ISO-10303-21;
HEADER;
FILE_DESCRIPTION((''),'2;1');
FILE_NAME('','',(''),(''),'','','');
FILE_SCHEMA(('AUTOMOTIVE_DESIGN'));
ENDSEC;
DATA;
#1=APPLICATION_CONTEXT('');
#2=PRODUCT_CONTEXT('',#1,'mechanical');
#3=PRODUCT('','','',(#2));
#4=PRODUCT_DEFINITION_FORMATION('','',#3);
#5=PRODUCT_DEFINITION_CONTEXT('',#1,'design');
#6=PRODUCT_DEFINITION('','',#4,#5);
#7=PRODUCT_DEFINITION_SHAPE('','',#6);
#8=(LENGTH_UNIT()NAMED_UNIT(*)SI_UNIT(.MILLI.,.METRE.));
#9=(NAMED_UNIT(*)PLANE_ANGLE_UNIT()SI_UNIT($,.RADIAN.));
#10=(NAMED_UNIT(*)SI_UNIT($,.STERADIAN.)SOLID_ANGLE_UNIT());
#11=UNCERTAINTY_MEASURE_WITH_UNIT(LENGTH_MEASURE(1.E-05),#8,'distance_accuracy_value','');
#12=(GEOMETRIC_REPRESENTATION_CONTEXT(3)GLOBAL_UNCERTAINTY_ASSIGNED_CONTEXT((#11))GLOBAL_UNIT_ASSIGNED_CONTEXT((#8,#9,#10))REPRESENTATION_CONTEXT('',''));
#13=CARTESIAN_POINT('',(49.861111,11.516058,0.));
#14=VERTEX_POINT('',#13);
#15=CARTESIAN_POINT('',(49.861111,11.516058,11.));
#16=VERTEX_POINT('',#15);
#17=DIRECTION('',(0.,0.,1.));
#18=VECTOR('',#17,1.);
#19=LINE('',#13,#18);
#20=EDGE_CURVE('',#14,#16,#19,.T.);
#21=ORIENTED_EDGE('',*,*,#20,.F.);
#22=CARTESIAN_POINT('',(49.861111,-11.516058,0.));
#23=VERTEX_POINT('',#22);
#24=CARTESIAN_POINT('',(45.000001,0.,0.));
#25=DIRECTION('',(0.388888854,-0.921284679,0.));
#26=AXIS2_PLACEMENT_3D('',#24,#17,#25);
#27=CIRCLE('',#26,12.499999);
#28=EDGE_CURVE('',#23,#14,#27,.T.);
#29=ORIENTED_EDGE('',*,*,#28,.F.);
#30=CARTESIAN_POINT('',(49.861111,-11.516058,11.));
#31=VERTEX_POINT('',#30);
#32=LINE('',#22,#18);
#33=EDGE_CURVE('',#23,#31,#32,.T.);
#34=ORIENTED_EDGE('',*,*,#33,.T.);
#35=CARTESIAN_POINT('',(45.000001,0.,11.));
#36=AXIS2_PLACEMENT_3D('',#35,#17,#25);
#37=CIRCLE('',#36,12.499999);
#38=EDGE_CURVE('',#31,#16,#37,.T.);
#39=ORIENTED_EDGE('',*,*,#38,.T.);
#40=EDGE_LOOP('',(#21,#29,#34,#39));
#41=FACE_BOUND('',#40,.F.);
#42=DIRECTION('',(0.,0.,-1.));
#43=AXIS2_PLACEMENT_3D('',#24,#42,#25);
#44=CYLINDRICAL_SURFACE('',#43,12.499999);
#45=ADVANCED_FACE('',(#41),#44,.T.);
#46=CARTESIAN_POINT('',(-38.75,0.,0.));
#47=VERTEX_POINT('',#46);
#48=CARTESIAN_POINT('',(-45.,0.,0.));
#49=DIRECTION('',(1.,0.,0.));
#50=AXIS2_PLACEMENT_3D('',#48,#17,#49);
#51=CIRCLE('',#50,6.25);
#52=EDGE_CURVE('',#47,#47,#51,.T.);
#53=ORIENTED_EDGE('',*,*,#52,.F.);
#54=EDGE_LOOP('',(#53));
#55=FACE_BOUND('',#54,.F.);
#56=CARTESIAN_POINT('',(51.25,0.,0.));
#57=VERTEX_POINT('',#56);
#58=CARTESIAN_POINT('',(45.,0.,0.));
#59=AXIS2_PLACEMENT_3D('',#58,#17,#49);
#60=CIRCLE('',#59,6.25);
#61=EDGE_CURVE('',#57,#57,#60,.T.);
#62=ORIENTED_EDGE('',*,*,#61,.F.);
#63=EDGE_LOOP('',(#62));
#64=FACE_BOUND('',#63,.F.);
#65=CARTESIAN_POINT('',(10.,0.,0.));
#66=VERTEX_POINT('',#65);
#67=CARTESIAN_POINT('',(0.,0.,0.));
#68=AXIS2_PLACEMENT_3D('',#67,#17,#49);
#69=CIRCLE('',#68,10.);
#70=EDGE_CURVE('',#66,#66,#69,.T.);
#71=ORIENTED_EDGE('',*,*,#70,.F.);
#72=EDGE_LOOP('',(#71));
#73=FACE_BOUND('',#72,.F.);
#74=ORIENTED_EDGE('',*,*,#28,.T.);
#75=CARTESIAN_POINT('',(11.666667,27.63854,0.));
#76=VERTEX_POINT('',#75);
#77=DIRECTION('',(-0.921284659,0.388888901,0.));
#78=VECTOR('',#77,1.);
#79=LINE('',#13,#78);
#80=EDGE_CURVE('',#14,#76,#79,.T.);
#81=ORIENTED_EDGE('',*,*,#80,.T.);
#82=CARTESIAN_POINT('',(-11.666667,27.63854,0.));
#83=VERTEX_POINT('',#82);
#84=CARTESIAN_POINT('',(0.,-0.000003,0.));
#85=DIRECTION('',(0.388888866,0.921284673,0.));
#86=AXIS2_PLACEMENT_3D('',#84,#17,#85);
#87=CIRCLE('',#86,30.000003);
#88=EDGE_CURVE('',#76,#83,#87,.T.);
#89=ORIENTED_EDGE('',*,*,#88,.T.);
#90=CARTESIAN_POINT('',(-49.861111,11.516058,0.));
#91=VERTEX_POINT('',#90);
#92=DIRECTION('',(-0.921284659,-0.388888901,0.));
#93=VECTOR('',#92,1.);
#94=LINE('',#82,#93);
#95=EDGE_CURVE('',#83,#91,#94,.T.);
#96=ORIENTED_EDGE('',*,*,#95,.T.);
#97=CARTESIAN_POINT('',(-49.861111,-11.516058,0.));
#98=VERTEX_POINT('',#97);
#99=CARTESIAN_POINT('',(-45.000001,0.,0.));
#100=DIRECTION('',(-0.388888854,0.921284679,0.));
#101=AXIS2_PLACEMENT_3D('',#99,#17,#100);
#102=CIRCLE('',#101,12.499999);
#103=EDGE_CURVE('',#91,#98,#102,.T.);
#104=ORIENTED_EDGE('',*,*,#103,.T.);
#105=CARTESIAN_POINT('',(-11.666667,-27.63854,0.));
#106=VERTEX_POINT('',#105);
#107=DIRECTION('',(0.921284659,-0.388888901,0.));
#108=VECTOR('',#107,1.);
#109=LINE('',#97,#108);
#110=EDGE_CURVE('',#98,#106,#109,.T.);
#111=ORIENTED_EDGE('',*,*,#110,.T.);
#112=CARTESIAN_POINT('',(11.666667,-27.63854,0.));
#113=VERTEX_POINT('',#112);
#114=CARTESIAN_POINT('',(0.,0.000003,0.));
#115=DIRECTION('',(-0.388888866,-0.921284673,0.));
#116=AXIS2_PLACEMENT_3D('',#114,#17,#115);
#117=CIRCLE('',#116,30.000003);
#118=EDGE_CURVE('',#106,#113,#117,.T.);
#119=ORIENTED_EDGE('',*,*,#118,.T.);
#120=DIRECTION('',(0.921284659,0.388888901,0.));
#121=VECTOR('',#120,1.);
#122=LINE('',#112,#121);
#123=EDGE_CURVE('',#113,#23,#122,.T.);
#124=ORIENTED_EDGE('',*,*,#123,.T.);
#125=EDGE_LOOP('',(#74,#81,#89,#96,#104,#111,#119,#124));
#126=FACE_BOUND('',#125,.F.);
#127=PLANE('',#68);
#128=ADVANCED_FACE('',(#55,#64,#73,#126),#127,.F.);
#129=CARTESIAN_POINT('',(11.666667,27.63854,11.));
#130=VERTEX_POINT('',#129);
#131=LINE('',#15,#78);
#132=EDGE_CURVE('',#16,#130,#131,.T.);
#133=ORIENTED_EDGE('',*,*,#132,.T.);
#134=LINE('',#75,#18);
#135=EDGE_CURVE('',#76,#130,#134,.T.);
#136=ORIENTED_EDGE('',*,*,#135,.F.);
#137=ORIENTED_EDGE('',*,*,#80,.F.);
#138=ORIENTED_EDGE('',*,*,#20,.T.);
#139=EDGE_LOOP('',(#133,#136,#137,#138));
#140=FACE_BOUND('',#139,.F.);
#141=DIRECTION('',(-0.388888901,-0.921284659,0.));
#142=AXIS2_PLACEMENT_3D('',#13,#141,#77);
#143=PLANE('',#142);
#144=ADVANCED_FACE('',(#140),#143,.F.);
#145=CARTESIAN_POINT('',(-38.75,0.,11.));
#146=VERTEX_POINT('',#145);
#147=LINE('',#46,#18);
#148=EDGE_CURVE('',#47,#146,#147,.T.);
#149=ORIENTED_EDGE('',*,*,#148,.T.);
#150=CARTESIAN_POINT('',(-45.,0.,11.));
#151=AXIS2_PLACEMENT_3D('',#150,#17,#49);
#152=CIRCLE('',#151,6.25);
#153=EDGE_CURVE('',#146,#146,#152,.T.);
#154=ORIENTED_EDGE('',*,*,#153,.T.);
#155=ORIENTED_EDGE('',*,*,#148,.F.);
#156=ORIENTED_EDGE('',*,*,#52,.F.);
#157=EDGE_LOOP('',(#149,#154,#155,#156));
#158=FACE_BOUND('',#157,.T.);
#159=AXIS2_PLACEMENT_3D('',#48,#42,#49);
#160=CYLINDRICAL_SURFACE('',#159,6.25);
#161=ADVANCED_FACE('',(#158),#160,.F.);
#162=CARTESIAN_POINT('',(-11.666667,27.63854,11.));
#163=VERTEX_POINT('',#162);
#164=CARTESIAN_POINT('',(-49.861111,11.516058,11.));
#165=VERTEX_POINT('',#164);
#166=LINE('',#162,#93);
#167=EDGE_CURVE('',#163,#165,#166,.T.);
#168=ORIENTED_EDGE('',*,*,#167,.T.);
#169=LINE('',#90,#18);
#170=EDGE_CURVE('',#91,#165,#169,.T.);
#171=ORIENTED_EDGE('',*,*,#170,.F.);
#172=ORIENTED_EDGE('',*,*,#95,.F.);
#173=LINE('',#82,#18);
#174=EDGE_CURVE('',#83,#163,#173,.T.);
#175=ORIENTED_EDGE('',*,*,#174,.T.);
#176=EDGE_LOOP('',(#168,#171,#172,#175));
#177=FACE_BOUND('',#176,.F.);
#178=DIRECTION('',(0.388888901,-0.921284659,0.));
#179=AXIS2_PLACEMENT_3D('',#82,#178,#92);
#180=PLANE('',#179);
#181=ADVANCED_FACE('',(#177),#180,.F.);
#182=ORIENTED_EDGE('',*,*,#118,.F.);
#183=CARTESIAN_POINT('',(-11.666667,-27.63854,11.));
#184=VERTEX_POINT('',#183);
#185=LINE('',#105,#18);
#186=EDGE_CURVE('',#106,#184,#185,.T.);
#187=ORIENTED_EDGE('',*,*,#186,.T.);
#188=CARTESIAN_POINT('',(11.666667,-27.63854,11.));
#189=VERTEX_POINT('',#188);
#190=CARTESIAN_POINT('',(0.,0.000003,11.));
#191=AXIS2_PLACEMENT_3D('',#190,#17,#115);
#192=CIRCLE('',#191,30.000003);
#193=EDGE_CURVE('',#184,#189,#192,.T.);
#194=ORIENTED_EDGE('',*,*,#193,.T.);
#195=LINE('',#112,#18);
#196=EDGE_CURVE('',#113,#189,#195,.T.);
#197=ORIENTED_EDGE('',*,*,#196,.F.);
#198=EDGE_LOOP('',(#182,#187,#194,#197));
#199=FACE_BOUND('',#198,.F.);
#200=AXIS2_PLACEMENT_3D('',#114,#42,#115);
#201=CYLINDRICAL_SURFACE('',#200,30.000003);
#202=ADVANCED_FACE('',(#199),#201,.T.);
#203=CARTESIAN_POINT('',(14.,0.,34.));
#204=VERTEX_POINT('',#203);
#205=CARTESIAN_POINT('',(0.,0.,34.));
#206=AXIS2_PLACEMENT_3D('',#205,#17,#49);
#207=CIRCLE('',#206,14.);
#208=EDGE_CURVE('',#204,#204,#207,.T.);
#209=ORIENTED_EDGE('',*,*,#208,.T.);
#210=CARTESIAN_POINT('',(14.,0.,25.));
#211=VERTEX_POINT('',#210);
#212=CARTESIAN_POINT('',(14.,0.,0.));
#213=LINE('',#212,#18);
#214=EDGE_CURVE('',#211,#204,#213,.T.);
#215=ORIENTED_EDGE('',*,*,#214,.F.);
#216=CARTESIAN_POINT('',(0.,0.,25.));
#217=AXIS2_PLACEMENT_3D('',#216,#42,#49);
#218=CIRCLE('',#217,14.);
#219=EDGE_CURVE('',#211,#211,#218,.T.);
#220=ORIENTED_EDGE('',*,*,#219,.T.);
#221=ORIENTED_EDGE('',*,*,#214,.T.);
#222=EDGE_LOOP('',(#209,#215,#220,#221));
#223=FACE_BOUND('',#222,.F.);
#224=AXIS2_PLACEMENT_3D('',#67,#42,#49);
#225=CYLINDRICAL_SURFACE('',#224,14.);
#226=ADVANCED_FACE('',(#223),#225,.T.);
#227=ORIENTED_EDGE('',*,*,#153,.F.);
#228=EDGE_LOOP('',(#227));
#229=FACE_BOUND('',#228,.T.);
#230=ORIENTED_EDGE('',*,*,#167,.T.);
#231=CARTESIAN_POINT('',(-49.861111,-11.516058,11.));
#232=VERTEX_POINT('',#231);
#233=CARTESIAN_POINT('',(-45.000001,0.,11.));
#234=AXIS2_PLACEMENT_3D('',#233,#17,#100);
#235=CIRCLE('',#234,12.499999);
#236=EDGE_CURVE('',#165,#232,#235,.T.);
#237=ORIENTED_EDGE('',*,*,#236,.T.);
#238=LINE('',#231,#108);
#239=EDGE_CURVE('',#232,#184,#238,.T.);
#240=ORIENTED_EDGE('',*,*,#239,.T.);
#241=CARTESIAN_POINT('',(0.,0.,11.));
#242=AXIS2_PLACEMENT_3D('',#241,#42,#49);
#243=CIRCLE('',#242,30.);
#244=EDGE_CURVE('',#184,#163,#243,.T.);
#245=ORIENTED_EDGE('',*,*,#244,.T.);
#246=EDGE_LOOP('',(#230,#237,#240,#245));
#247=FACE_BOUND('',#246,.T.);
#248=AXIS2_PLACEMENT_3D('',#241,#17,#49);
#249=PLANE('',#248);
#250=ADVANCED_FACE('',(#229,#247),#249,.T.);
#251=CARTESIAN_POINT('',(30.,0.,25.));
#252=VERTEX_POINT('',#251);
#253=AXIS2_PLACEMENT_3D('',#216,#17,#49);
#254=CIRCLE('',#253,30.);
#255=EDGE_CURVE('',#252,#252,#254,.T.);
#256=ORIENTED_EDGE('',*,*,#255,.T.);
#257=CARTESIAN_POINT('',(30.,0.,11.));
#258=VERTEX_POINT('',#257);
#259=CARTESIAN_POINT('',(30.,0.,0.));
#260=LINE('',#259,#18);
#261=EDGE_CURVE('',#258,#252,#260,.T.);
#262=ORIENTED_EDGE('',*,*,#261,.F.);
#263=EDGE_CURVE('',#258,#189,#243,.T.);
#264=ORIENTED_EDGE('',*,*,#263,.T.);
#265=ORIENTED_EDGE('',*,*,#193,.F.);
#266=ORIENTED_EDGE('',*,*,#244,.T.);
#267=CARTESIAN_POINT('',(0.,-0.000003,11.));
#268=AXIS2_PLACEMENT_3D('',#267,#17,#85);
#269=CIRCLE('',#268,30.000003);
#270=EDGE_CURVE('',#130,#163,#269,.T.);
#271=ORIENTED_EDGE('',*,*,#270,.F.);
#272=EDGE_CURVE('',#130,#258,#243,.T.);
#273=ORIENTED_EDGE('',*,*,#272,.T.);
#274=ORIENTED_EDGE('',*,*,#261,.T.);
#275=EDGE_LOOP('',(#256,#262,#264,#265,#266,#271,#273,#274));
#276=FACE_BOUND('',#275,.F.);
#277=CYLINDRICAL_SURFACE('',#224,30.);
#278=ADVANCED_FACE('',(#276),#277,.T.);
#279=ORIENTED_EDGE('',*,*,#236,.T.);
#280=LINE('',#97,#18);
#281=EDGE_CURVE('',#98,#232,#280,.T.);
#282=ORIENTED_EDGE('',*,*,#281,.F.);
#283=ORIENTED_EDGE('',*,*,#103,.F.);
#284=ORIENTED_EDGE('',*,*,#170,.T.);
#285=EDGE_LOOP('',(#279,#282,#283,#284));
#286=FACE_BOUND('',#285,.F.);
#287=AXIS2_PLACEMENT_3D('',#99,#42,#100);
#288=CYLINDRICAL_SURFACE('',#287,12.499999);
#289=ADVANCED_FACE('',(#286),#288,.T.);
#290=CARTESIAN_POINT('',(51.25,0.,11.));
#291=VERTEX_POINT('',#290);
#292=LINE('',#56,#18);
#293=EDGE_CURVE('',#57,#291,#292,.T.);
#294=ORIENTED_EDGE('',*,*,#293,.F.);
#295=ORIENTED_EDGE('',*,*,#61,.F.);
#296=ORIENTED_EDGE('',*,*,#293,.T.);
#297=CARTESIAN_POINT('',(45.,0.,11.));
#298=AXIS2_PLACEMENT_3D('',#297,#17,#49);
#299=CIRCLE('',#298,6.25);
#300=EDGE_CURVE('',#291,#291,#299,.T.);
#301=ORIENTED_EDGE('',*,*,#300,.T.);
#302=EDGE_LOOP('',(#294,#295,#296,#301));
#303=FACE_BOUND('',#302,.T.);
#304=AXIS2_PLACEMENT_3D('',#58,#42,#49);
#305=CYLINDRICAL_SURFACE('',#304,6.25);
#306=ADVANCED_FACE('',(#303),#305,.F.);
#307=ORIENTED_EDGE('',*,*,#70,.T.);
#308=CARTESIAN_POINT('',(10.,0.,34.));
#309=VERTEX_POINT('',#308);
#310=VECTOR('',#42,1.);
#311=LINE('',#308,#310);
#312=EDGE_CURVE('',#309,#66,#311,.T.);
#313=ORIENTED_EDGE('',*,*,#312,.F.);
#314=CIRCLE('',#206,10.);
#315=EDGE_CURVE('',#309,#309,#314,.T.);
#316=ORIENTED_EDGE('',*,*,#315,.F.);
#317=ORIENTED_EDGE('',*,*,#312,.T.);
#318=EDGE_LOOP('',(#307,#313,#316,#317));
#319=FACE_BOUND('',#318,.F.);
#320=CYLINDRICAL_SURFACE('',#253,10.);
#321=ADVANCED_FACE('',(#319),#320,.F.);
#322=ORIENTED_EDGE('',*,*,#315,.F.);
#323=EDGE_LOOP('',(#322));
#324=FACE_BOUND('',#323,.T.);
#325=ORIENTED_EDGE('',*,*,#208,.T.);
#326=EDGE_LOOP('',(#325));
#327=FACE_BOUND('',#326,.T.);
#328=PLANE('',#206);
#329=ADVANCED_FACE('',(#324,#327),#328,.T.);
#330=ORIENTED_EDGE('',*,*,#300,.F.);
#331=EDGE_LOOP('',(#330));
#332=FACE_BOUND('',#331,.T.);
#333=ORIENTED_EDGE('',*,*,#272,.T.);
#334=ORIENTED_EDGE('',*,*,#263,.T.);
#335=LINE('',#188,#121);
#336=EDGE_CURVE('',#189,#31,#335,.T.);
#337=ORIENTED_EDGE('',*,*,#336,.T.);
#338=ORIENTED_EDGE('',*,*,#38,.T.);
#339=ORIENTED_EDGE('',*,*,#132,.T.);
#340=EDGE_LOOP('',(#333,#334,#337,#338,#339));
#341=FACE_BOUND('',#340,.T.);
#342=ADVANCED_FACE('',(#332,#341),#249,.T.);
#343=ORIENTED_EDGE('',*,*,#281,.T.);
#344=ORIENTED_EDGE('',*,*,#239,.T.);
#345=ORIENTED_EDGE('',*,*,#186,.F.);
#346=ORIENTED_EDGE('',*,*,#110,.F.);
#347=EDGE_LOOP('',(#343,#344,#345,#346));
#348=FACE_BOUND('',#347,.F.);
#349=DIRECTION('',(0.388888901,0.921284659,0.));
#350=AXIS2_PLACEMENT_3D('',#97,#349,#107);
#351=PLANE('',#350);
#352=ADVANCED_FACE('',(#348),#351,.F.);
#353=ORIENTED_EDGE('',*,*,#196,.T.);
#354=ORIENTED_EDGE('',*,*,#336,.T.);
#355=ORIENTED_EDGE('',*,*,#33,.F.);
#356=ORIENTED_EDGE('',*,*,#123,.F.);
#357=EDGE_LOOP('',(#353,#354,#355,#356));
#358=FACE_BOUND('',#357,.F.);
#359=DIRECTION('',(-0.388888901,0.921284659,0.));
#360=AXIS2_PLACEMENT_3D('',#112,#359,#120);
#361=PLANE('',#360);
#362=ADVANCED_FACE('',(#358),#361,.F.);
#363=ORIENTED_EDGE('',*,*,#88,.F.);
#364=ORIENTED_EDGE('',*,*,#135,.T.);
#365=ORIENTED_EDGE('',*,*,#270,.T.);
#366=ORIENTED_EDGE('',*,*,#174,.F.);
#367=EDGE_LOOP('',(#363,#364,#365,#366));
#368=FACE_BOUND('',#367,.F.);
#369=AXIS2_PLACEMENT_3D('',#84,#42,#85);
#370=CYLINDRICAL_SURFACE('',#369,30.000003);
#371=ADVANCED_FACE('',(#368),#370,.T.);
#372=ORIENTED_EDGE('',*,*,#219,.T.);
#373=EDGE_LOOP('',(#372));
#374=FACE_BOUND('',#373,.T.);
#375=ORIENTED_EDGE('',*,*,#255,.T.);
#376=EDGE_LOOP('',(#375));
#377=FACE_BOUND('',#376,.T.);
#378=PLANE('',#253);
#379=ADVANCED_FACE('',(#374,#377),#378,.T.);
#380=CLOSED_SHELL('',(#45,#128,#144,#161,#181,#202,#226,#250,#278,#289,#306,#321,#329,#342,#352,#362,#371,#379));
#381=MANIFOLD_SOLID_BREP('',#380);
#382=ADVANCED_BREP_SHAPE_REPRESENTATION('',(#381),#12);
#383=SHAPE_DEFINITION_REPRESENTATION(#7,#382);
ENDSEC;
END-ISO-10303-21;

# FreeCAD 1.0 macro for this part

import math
import FreeCAD as App
import Part
import Sketcher
Q = App.Units.Quantity

doc = App.newDocument("Part")
params = doc.addObject("Spreadsheet::Sheet", "Params")
for row, (alias, value) in enumerate([
    ("sketch1_diameter", "12.5 mm"),
    ("sketch1_radius", "12.499999 mm"),
    ("pad1_length", "11 mm"),
    ("sketch2_diameter", "60 mm"),
    ("pad2_length", "25 mm"),
    ("sketch3_diameter", "28 mm"),
    ("sketch3_diameter2", "20 mm"),
    ("pad3_length", "34 mm"),
    ("sketch4_diameter", "20 mm"),
    ("pocket1_length", "25 mm"),
], start=1):
    params.set(f"A{row}", alias)
    params.set(f"B{row}", "=" + value)
    params.setAlias(f"B{row}", alias)

body = doc.addObject("PartDesign::Body", "Body")

sketch1 = doc.addObject("Sketcher::SketchObject", "Sketch")
body.addObject(sketch1)
sketch1.AttachmentSupport = (doc.XY_Plane, [""])
sketch1.MapMode = "FlatFace"
sketch1.addGeometry([
    Part.LineSegment(App.Vector(-50, -12, 0), App.Vector(-12, -28, 0)),
    Part.ArcOfCircle(Part.Circle(App.Vector(0, 0, 0), App.Vector(0, 0, 1), 30), math.radians(-113), math.radians(-67)),
    Part.LineSegment(App.Vector(12, -28, 0), App.Vector(50, -12, 0)),
    Part.ArcOfCircle(Part.Circle(App.Vector(45, 0, 0), App.Vector(0, 0, 1), 12), math.radians(-67), math.radians(67)),
    Part.LineSegment(App.Vector(50, 12, 0), App.Vector(12, 28, 0)),
    Part.ArcOfCircle(Part.Circle(App.Vector(0, 0, 0), App.Vector(0, 0, 1), 30), math.radians(67), math.radians(113)),
    Part.LineSegment(App.Vector(-12, 28, 0), App.Vector(-50, 12, 0)),
    Part.ArcOfCircle(Part.Circle(App.Vector(-45, 0, 0), App.Vector(0, 0, 1), 12), math.radians(113), math.radians(247)),
    Part.Circle(App.Vector(-45, 0, 0), App.Vector(0, 0, 1), 6),
    Part.Circle(App.Vector(45, 0, 0), App.Vector(0, 0, 1), 6),
], False)
sketch1.addConstraint([
    Sketcher.Constraint("Tangent", 0, 2, 1, 1),
    Sketcher.Constraint("Tangent", 1, 2, 2, 1),
    Sketcher.Constraint("Tangent", 2, 2, 3, 1),
    Sketcher.Constraint("Tangent", 3, 2, 4, 1),
    Sketcher.Constraint("Tangent", 4, 2, 5, 1),
    Sketcher.Constraint("Tangent", 5, 2, 6, 1),
    Sketcher.Constraint("Tangent", 6, 2, 7, 1),
    Sketcher.Constraint("Tangent", 7, 2, 0, 1),
    Sketcher.Constraint("Coincident", 1, 3, -1, 1),
    Sketcher.Constraint("Coincident", 5, 3, -1, 1),
    Sketcher.Constraint("Coincident", 8, 3, 7, 3),
    Sketcher.Constraint("Coincident", 9, 3, 3, 3),
    Sketcher.Constraint("Equal", 1, 5),
    Sketcher.Constraint("Equal", 3, 7),
    Sketcher.Constraint("Equal", 8, 9),
    Sketcher.Constraint("Symmetric", 3, 3, 7, 3, -1, 1),
    Sketcher.Constraint("PointOnObject", 3, 3, -1),
    Sketcher.Constraint("Diameter", 8, Q("12.5 mm")),
    Sketcher.Constraint("Radius", 3, Q("12.499999 mm")),
    Sketcher.Constraint("DistanceX", -1, 1, 3, 3, Q("45.000001 mm")),
    Sketcher.Constraint("Radius", 1, Q("30.000003 mm")),
])
sketch1.setExpression("Constraints[17]", "Params.sketch1_diameter")
sketch1.setExpression("Constraints[18]", "Params.sketch1_radius")
pad1 = doc.addObject("PartDesign::Pad", "Pad")
body.addObject(pad1)
pad1.Profile = sketch1
pad1.setExpression("Length", "Params.pad1_length")

sketch2 = doc.addObject("Sketcher::SketchObject", "Sketch001")
body.addObject(sketch2)
sketch2.AttachmentSupport = (doc.XY_Plane, [""])
sketch2.MapMode = "FlatFace"
sketch2.addGeometry(Part.Circle(App.Vector(0, 0, 0), App.Vector(0, 0, 1), 30), False)
sketch2.addConstraint([
    Sketcher.Constraint("Coincident", 0, 3, -1, 1),
    Sketcher.Constraint("Diameter", 0, Q("60 mm")),
])
sketch2.setExpression("Constraints[1]", "Params.sketch2_diameter")
pad2 = doc.addObject("PartDesign::Pad", "Pad001")
body.addObject(pad2)
pad2.Profile = sketch2
pad2.setExpression("Length", "Params.pad2_length")

sketch3 = doc.addObject("Sketcher::SketchObject", "Sketch002")
body.addObject(sketch3)
sketch3.AttachmentSupport = (doc.XY_Plane, [""])
sketch3.MapMode = "FlatFace"
sketch3.addGeometry([
    Part.Circle(App.Vector(0, 0, 0), App.Vector(0, 0, 1), 14),
    Part.Circle(App.Vector(0, 0, 0), App.Vector(0, 0, 1), 10),
], False)
sketch3.addConstraint([
    Sketcher.Constraint("Coincident", 0, 3, -1, 1),
    Sketcher.Constraint("Coincident", 1, 3, -1, 1),
    Sketcher.Constraint("Diameter", 0, Q("28 mm")),
    Sketcher.Constraint("Diameter", 1, Q("20 mm")),
])
sketch3.setExpression("Constraints[2]", "Params.sketch3_diameter")
sketch3.setExpression("Constraints[3]", "Params.sketch3_diameter2")
pad3 = doc.addObject("PartDesign::Pad", "Pad002")
body.addObject(pad3)
pad3.Profile = sketch3
pad3.setExpression("Length", "Params.pad3_length")

sketch4 = doc.addObject("Sketcher::SketchObject", "Sketch003")
body.addObject(sketch4)
sketch4.AttachmentSupport = (doc.XY_Plane, [""])
sketch4.MapMode = "FlatFace"
sketch4.AttachmentOffset = App.Placement(App.Vector(0, 0, 25), App.Rotation())
sketch4.addGeometry(Part.Circle(App.Vector(0, 0, 0), App.Vector(0, 0, 1), 10), False)
sketch4.addConstraint([
    Sketcher.Constraint("Coincident", 0, 3, -1, 1),
    Sketcher.Constraint("Diameter", 0, Q("20 mm")),
])
sketch4.setExpression("Constraints[1]", "Params.sketch4_diameter")
pocket1 = doc.addObject("PartDesign::Pocket", "Pocket")
body.addObject(pocket1)
pocket1.Profile = sketch4
pocket1.setExpression("Length", "Params.pocket1_length")

doc.recompute()
